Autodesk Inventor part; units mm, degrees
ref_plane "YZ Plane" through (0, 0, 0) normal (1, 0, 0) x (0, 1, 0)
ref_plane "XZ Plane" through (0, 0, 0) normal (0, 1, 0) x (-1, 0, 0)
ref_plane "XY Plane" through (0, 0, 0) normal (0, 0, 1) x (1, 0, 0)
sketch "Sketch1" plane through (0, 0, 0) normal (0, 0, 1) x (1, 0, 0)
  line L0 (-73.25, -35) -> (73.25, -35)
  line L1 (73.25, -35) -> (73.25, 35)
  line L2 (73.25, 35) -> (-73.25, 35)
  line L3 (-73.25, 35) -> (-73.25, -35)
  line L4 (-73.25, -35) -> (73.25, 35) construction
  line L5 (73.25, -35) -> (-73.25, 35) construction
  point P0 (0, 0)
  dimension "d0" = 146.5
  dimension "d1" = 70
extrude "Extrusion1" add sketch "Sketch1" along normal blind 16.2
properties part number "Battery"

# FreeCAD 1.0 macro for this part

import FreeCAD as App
import Part
import Sketcher

V = App.Vector
Q = App.Units.Quantity

doc = App.newDocument("Part")
body = doc.addObject("PartDesign::Body", "Body")

sketch1 = body.newObject("Sketcher::SketchObject", "Sketch")
sketch1.AttachmentSupport = (doc.getObject("XY_Plane"), [""])
sketch1.MapMode = "FlatFace"
sketch1.addGeometry(Part.LineSegment(V(-73.25, 35, 0), V(-73.25, -35, 0)), False)
sketch1.addGeometry(Part.LineSegment(V(-73.25, -35, 0), V(73.25, -35, 0)), False)
sketch1.addGeometry(Part.LineSegment(V(73.25, -35, 0), V(73.25, 35, 0)), False)
sketch1.addGeometry(Part.LineSegment(V(73.25, 35, 0), V(-73.25, 35, 0)), False)
sketch1.addConstraint(Sketcher.Constraint("Coincident", 0, 2, 1, 1))
sketch1.addConstraint(Sketcher.Constraint("Coincident", 1, 2, 2, 1))
sketch1.addConstraint(Sketcher.Constraint("Coincident", 2, 2, 3, 1))
sketch1.addConstraint(Sketcher.Constraint("Coincident", 3, 2, 0, 1))
sketch1.addConstraint(Sketcher.Constraint("Vertical", 0))
sketch1.addConstraint(Sketcher.Constraint("Horizontal", 1))
sketch1.addConstraint(Sketcher.Constraint("Vertical", 2))
sketch1.addConstraint(Sketcher.Constraint("Horizontal", 3))
sketch1.addConstraint(Sketcher.Constraint("Symmetric", 0, 2, 2, 2, -1, 1))
sketch1.addConstraint(Sketcher.Constraint("DistanceY", 0, 2, 0, 1, Q("70 mm")))
sketch1.addConstraint(Sketcher.Constraint("DistanceX", 1, 1, 1, 2, Q("146.5 mm")))
pad1 = body.newObject("PartDesign::Pad", "Pad")
pad1.Profile = sketch1
pad1.Length = 16.2

doc.recompute()
